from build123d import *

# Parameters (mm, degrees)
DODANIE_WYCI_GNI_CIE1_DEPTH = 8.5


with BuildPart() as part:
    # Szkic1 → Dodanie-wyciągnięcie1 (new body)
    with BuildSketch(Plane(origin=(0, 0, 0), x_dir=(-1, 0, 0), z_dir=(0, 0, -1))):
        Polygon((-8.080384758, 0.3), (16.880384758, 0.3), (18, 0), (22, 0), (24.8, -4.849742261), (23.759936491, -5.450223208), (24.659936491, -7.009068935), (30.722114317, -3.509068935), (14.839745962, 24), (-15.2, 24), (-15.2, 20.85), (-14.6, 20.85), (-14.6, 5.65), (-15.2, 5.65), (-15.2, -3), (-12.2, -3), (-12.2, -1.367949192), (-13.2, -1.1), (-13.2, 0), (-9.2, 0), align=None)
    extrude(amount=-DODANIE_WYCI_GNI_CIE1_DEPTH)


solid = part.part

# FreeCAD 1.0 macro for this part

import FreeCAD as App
import Part
import Sketcher
Q = App.Units.Quantity


def add_polygon(sketch, points):
    """Adds a closed chain of lines whose ends are joined by coincident constraints."""
    first, n = sketch.GeometryCount, len(points)
    for a, b in zip(points, points[1:] + points[:1]):
        sketch.addGeometry(Part.LineSegment(App.Vector(*a, 0), App.Vector(*b, 0)), False)
    for i in range(n):
        sketch.addConstraint(Sketcher.Constraint("Coincident", first + i, 2, first + (i + 1) % n, 1))

doc = App.newDocument("Part")
body = doc.addObject("PartDesign::Body", "Body")

# Sketch on XY plane
sketch1 = doc.addObject("Sketcher::SketchObject", "Sketch")
body.addObject(sketch1)
sketch1.AttachmentSupport = (doc.XY_Plane, [""])
sketch1.MapMode = "FlatFace"
add_polygon(sketch1, [(8.1, 0.3), (-16.9, 0.3), (-18, 0), (-22, 0), (-24.8, -4.8), (-23.8, -5.5), (-24.7, -7), (-30.7, -3.5), (-14.8, 24), (15.2, 24), (15.2, 20.9), (14.6, 20.9), (14.6, 5.7), (15.2, 5.7), (15.2, -3), (12.2, -3), (12.2, -1.4), (13.2, -1.1), (13.2, 0), (9.2, 0)])  # lines 0-19
sketch1.addConstraint([
    Sketcher.Constraint("Horizontal", 0),
    Sketcher.Constraint("Horizontal", 2),
    Sketcher.Constraint("Horizontal", 8),
    Sketcher.Constraint("Vertical", 9),
    Sketcher.Constraint("Horizontal", 10),
    Sketcher.Constraint("Vertical", 11),
    Sketcher.Constraint("Horizontal", 12),
    Sketcher.Constraint("Vertical", 13),
    Sketcher.Constraint("Horizontal", 14),
    Sketcher.Constraint("Vertical", 15),
    Sketcher.Constraint("Vertical", 17),
    Sketcher.Constraint("Horizontal", 18),
    Sketcher.Constraint("PointOnObject", 1, 2, -1),
    Sketcher.Constraint("PointOnObject", 17, 2, -1),
    Sketcher.Constraint("Perpendicular", 3, 4),
    Sketcher.Constraint("Perpendicular", 4, 5),
    Sketcher.Constraint("Perpendicular", 5, 6),
    Sketcher.Constraint("Perpendicular", 6, 7),
    Sketcher.Constraint("Parallel", 1, 16),
    Sketcher.Constraint("Vertical", 9, 2, 12, 2),
    Sketcher.Constraint("Equal", 2, 18),
    Sketcher.Constraint("Equal", 1, 19),
    Sketcher.Constraint("DistanceX", 2, 2, 2, 1, Q("4 mm")),
    Sketcher.Constraint("DistanceX", 14, 2, 14, 1, Q("3 mm")),
    Sketcher.Constraint("Angle", 1, Q("-165 deg")),
    Sketcher.Constraint("Angle", 3, Q("-120 deg")),
    Sketcher.Constraint("Distance", 6, Q("7 mm")),
    Sketcher.Constraint("DistanceX", 10, 2, 10, 1, Q("0.6 mm")),
    Sketcher.Constraint("DistanceY", 11, 2, 11, 1, Q("15.2 mm")),
    Sketcher.Constraint("DistanceY", 17, 1, 17, 2, Q("1.1 mm")),
    Sketcher.Constraint("DistanceX", 1, 2, -1, 1, Q("18 mm")),
    Sketcher.Constraint("DistanceY", -1, 1, 7, 2, Q("24 mm")),
    Sketcher.Constraint("DistanceY", 13, 2, -1, 1, Q("3 mm")),
    Sketcher.Constraint("DistanceX", 15, 2, 16, 2, Q("1 mm")),
    Sketcher.Constraint("Distance", 3, Q("5.6 mm")),
    Sketcher.Constraint("Distance", 5, Q("1.8 mm")),
    Sketcher.Constraint("DistanceY", 9, 2, 9, 1, Q("3.15 mm")),
    Sketcher.Constraint("DistanceY", -1, 1, 0, 2, Q("0.3 mm")),
    Sketcher.Constraint("DistanceX", -1, 1, 8, 2, Q("15.2 mm")),
    Sketcher.Constraint("Distance", 4, Q("1.200962 mm")),
])
pad1 = doc.addObject("PartDesign::Pad", "Pad")
body.addObject(pad1)
pad1.Profile = sketch1
pad1.Length = 8.5

doc.recompute()
